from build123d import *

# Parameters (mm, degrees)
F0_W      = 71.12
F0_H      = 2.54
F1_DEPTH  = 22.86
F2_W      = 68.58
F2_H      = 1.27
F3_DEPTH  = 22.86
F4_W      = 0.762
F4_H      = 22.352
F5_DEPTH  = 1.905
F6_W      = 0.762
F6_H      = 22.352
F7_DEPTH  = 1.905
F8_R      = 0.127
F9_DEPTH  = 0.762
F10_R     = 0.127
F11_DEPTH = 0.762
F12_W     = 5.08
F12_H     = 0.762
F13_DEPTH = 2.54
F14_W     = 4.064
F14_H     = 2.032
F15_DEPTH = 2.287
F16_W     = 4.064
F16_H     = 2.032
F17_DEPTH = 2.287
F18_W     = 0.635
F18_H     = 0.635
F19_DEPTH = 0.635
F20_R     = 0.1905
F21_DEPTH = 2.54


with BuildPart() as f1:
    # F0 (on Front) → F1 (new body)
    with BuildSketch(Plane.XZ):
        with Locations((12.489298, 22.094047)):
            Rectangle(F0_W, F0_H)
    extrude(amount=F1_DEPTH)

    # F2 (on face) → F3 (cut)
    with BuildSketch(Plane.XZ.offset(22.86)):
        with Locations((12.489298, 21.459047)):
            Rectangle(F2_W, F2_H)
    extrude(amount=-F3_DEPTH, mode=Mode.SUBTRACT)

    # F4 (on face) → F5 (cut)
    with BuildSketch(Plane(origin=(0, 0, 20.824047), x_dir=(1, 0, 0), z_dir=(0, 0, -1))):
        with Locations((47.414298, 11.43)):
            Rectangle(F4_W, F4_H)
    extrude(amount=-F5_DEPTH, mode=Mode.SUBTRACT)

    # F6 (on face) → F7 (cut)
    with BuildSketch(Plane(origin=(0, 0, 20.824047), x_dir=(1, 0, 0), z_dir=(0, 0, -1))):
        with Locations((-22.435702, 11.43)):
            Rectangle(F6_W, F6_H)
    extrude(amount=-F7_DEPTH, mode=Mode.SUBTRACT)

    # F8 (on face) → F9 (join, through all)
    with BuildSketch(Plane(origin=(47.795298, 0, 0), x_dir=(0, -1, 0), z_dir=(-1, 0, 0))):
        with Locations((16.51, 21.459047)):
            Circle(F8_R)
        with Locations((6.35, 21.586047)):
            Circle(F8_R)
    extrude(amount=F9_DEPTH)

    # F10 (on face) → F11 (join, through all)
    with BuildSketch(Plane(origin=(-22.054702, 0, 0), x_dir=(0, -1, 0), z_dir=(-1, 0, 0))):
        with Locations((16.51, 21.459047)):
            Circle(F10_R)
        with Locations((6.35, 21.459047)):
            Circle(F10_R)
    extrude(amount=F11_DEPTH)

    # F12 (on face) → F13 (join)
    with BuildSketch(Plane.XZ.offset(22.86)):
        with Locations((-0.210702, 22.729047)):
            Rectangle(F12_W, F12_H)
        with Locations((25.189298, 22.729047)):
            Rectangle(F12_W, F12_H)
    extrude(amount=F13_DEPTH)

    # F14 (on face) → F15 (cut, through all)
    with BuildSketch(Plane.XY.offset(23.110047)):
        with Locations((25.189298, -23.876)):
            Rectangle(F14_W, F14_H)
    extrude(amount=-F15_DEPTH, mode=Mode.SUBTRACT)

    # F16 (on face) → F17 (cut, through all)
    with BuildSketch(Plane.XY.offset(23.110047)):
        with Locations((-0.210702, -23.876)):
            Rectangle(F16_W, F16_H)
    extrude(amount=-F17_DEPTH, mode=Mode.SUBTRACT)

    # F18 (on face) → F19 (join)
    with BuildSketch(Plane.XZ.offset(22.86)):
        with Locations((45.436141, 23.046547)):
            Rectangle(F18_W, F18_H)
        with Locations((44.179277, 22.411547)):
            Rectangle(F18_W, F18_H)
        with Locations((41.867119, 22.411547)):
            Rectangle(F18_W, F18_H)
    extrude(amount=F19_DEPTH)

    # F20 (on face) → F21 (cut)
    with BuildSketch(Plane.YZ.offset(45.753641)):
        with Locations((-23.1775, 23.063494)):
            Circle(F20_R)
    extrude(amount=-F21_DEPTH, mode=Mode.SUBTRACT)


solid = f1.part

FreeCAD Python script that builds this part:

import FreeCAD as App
import Part
import Sketcher
Q = App.Units.Quantity

doc = App.newDocument("Part")
body = doc.addObject("PartDesign::Body", "Body")

# Sketch on XZ plane
sketch1 = doc.addObject("Sketcher::SketchObject", "Sketch")
body.addObject(sketch1)
sketch1.AttachmentSupport = (doc.XZ_Plane, [""])
sketch1.MapMode = "FlatFace"
sketch1.addGeometry(Part.LineSegment(App.Vector(-23.1, 23.4, 0), App.Vector(-23.1, 20.8, 0)), False)
sketch1.addGeometry(Part.LineSegment(App.Vector(-23.1, 20.8, 0), App.Vector(48, 20.8, 0)), False)
sketch1.addGeometry(Part.LineSegment(App.Vector(48, 20.8, 0), App.Vector(48, 23.4, 0)), False)
sketch1.addGeometry(Part.LineSegment(App.Vector(48, 23.4, 0), App.Vector(-23.1, 23.4, 0)), False)
sketch1.addConstraint(Sketcher.Constraint("Coincident", 0, 2, 1, 1))
sketch1.addConstraint(Sketcher.Constraint("Coincident", 1, 2, 2, 1))
sketch1.addConstraint(Sketcher.Constraint("Coincident", 2, 2, 3, 1))
sketch1.addConstraint(Sketcher.Constraint("Coincident", 3, 2, 0, 1))
sketch1.addConstraint(Sketcher.Constraint("Vertical", 0))
sketch1.addConstraint(Sketcher.Constraint("Horizontal", 1))
sketch1.addConstraint(Sketcher.Constraint("Vertical", 2))
sketch1.addConstraint(Sketcher.Constraint("Horizontal", 3))
sketch1.addConstraint(Sketcher.Constraint("DistanceX", 1, 1, 1, 2, Q("2.8 in")))
sketch1.addConstraint(Sketcher.Constraint("DistanceY", 0, 2, 0, 1, Q("0.1 in")))
sketch1.addConstraint(Sketcher.Constraint("DistanceX", 0, 2, -1, 1, 23.070702))
sketch1.addConstraint(Sketcher.Constraint("DistanceY", -1, 1, 0, 2, 20.824047))
pad1 = doc.addObject("PartDesign::Pad", "Pad")
body.addObject(pad1)
pad1.Profile = sketch1
pad1.Length = Q("0.9 in")

# Sketch on XZ plane
sketch2 = doc.addObject("Sketcher::SketchObject", "Sketch001")
body.addObject(sketch2)
sketch2.AttachmentSupport = (doc.XZ_Plane, [""])
sketch2.MapMode = "FlatFace"
sketch2.AttachmentOffset = App.Placement(App.Vector(0, 0, 0.9 * 25.4), App.Rotation())
sketch2.addGeometry(Part.LineSegment(App.Vector(-21.8, 22.1, 0), App.Vector(-21.8, 20.8, 0)), False)
sketch2.addGeometry(Part.LineSegment(App.Vector(-21.8, 20.8, 0), App.Vector(46.8, 20.8, 0)), False)
sketch2.addGeometry(Part.LineSegment(App.Vector(46.8, 20.8, 0), App.Vector(46.8, 22.1, 0)), False)
sketch2.addGeometry(Part.LineSegment(App.Vector(46.8, 22.1, 0), App.Vector(-21.8, 22.1, 0)), False)
sketch2.addConstraint(Sketcher.Constraint("Coincident", 0, 2, 1, 1))
sketch2.addConstraint(Sketcher.Constraint("Coincident", 1, 2, 2, 1))
sketch2.addConstraint(Sketcher.Constraint("Coincident", 2, 2, 3, 1))
sketch2.addConstraint(Sketcher.Constraint("Coincident", 3, 2, 0, 1))
sketch2.addConstraint(Sketcher.Constraint("Vertical", 0))
sketch2.addConstraint(Sketcher.Constraint("Horizontal", 1))
sketch2.addConstraint(Sketcher.Constraint("Vertical", 2))
sketch2.addConstraint(Sketcher.Constraint("Horizontal", 3))
sketch2.addConstraint(Sketcher.Constraint("DistanceX", 1, 1, 1, 2, Q("2.7 in")))
sketch2.addConstraint(Sketcher.Constraint("DistanceY", 0, 2, 0, 1, Q("0.05 in")))
sketch2.addConstraint(Sketcher.Constraint("DistanceX", 0, 2, -1, 1, 21.800702))
sketch2.addConstraint(Sketcher.Constraint("DistanceY", -1, 1, 0, 2, 20.824047))
pocket1 = doc.addObject("PartDesign::Pocket", "Pocket")
body.addObject(pocket1)
pocket1.Profile = sketch2
pocket1.Length = Q("0.9 in")

# Sketch on XY plane
sketch3 = doc.addObject("Sketcher::SketchObject", "Sketch002")
body.addObject(sketch3)
sketch3.AttachmentSupport = (doc.XY_Plane, [""])
sketch3.MapMode = "FlatFace"
sketch3.AttachmentOffset = App.Placement(App.Vector(0, 0, 20.824047), App.Rotation())
sketch3.addGeometry(Part.LineSegment(App.Vector(47, -22.6, 0), App.Vector(47, -0.3, 0)), False)
sketch3.addGeometry(Part.LineSegment(App.Vector(47, -0.3, 0), App.Vector(47.8, -0.3, 0)), False)
sketch3.addGeometry(Part.LineSegment(App.Vector(47.8, -0.3, 0), App.Vector(47.8, -22.6, 0)), False)
sketch3.addGeometry(Part.LineSegment(App.Vector(47.8, -22.6, 0), App.Vector(47, -22.6, 0)), False)
sketch3.addConstraint(Sketcher.Constraint("Coincident", 0, 2, 1, 1))
sketch3.addConstraint(Sketcher.Constraint("Coincident", 1, 2, 2, 1))
sketch3.addConstraint(Sketcher.Constraint("Coincident", 2, 2, 3, 1))
sketch3.addConstraint(Sketcher.Constraint("Coincident", 3, 2, 0, 1))
sketch3.addConstraint(Sketcher.Constraint("Vertical", 0))
sketch3.addConstraint(Sketcher.Constraint("Horizontal", 1))
sketch3.addConstraint(Sketcher.Constraint("Vertical", 2))
sketch3.addConstraint(Sketcher.Constraint("Horizontal", 3))
sketch3.addConstraint(Sketcher.Constraint("DistanceX", 1, 1, 1, 2, Q("0.03 in")))
sketch3.addConstraint(Sketcher.Constraint("DistanceY", 0, 1, 0, 2, Q("0.88 in")))
sketch3.addConstraint(Sketcher.Constraint("DistanceY", 0, 2, -1, 1, Q("0.01 in")))
sketch3.addConstraint(Sketcher.Constraint("DistanceX", -1, 1, 0, 2, 47.033298))
pocket2 = doc.addObject("PartDesign::Pocket", "Pocket001")
body.addObject(pocket2)
pocket2.Profile = sketch3
pocket2.Length = Q("0.075 in")
pocket2.Reversed = True

# Sketch on XY plane
sketch4 = doc.addObject("Sketcher::SketchObject", "Sketch003")
body.addObject(sketch4)
sketch4.AttachmentSupport = (doc.XY_Plane, [""])
sketch4.MapMode = "FlatFace"
sketch4.AttachmentOffset = App.Placement(App.Vector(0, 0, 20.824047), App.Rotation())
sketch4.addGeometry(Part.LineSegment(App.Vector(-22.8, -22.6, 0), App.Vector(-22.8, -0.3, 0)), False)
sketch4.addGeometry(Part.LineSegment(App.Vector(-22.8, -0.3, 0), App.Vector(-22.1, -0.3, 0)), False)
sketch4.addGeometry(Part.LineSegment(App.Vector(-22.1, -0.3, 0), App.Vector(-22.1, -22.6, 0)), False)
sketch4.addGeometry(Part.LineSegment(App.Vector(-22.1, -22.6, 0), App.Vector(-22.8, -22.6, 0)), False)
sketch4.addConstraint(Sketcher.Constraint("Coincident", 0, 2, 1, 1))
sketch4.addConstraint(Sketcher.Constraint("Coincident", 1, 2, 2, 1))
sketch4.addConstraint(Sketcher.Constraint("Coincident", 2, 2, 3, 1))
sketch4.addConstraint(Sketcher.Constraint("Coincident", 3, 2, 0, 1))
sketch4.addConstraint(Sketcher.Constraint("Vertical", 0))
sketch4.addConstraint(Sketcher.Constraint("Horizontal", 1))
sketch4.addConstraint(Sketcher.Constraint("Vertical", 2))
sketch4.addConstraint(Sketcher.Constraint("Horizontal", 3))
sketch4.addConstraint(Sketcher.Constraint("DistanceX", 1, 1, 1, 2, Q("0.03 in")))
sketch4.addConstraint(Sketcher.Constraint("DistanceY", 0, 1, 0, 2, Q("0.88 in")))
sketch4.addConstraint(Sketcher.Constraint("DistanceY", 0, 2, -1, 1, Q("0.01 in")))
sketch4.addConstraint(Sketcher.Constraint("DistanceX", 0, 2, -1, 1, 22.816702))
pocket3 = doc.addObject("PartDesign::Pocket", "Pocket002")
body.addObject(pocket3)
pocket3.Profile = sketch4
pocket3.Length = Q("0.075 in")
pocket3.Reversed = True

# Sketch on YZ plane
sketch5 = doc.addObject("Sketcher::SketchObject", "Sketch004")
body.addObject(sketch5)
sketch5.AttachmentSupport = (doc.YZ_Plane, [""])
sketch5.MapMode = "FlatFace"
sketch5.AttachmentOffset = App.Placement(App.Vector(0, 0, 47.795298), App.Rotation())
sketch5.addGeometry(Part.Circle(App.Vector(-16.51, 21.46, 0), App.Vector(0, 0, 1), 0.13), False)
sketch5.addGeometry(Part.Circle(App.Vector(-6.35, 21.59, 0), App.Vector(0, 0, 1), 0.13), False)
sketch5.addConstraint(Sketcher.Constraint("Equal", 0, 1))
sketch5.addConstraint(Sketcher.Constraint("Diameter", 0, Q("0.01 in")))
sketch5.addConstraint(Sketcher.Constraint("DistanceX", 0, 3, 1, 3, Q("0.4 in")))
sketch5.addConstraint(Sketcher.Constraint("DistanceX", 0, 3, -1, 1, Q("0.65 in")))
sketch5.addConstraint(Sketcher.Constraint("DistanceY", 0, 3, 1, 3, Q("0.005 in")))
sketch5.addConstraint(Sketcher.Constraint("DistanceY", -1, 1, 0, 3, 21.459047))
pad2 = doc.addObject("PartDesign::Pad", "Pad001")
body.addObject(pad2)
pad2.Profile = sketch5
pad2.Length = Q("0.03 in")
pad2.Reversed = True

# Sketch on YZ plane
sketch6 = doc.addObject("Sketcher::SketchObject", "Sketch005")
body.addObject(sketch6)
sketch6.AttachmentSupport = (doc.YZ_Plane, [""])
sketch6.MapMode = "FlatFace"
sketch6.AttachmentOffset = App.Placement(App.Vector(0, 0, -22.054702), App.Rotation())
sketch6.addGeometry(Part.Circle(App.Vector(-16.51, 21.46, 0), App.Vector(0, 0, 1), 0.13), False)
sketch6.addGeometry(Part.Circle(App.Vector(-6.35, 21.46, 0), App.Vector(0, 0, 1), 0.13), False)
sketch6.addConstraint(Sketcher.Constraint("Equal", 0, 1))
sketch6.addConstraint(Sketcher.Constraint("Horizontal", 0, 3, 1, 3))
sketch6.addConstraint(Sketcher.Constraint("Diameter", 0, Q("0.01 in")))
sketch6.addConstraint(Sketcher.Constraint("DistanceX", 0, 3, 1, 3, Q("0.4 in")))
sketch6.addConstraint(Sketcher.Constraint("DistanceX", 0, 3, -1, 1, Q("0.65 in")))
sketch6.addConstraint(Sketcher.Constraint("DistanceY", -1, 1, 0, 3, 21.459047))
pad3 = doc.addObject("PartDesign::Pad", "Pad002")
body.addObject(pad3)
pad3.Profile = sketch6
pad3.Type = "UpToLast"
pad3.Reversed = True

# Sketch on XZ plane
sketch7 = doc.addObject("Sketcher::SketchObject", "Sketch006")
body.addObject(sketch7)
sketch7.AttachmentSupport = (doc.XZ_Plane, [""])
sketch7.MapMode = "FlatFace"
sketch7.AttachmentOffset = App.Placement(App.Vector(0, 0, 0.9 * 25.4), App.Rotation())
sketch7.addGeometry(Part.LineSegment(App.Vector(-2.8, 23.1, 0), App.Vector(-2.8, 22.3, 0)), False)
sketch7.addGeometry(Part.LineSegment(App.Vector(-2.8, 22.3, 0), App.Vector(2.3, 22.3, 0)), False)
sketch7.addGeometry(Part.LineSegment(App.Vector(2.3, 22.3, 0), App.Vector(2.3, 23.1, 0)), False)
sketch7.addGeometry(Part.LineSegment(App.Vector(2.3, 23.1, 0), App.Vector(-2.8, 23.1, 0)), False)
sketch7.addGeometry(Part.LineSegment(App.Vector(22.6, 23.1, 0), App.Vector(22.6, 22.3, 0)), False)
sketch7.addGeometry(Part.LineSegment(App.Vector(22.6, 22.3, 0), App.Vector(27.7, 22.3, 0)), False)
sketch7.addGeometry(Part.LineSegment(App.Vector(27.7, 22.3, 0), App.Vector(27.7, 23.1, 0)), False)
sketch7.addGeometry(Part.LineSegment(App.Vector(27.7, 23.1, 0), App.Vector(22.6, 23.1, 0)), False)
sketch7.addConstraint(Sketcher.Constraint("Coincident", 0, 2, 1, 1))
sketch7.addConstraint(Sketcher.Constraint("Coincident", 1, 2, 2, 1))
sketch7.addConstraint(Sketcher.Constraint("Coincident", 2, 2, 3, 1))
sketch7.addConstraint(Sketcher.Constraint("Coincident", 3, 2, 0, 1))
sketch7.addConstraint(Sketcher.Constraint("Coincident", 4, 2, 5, 1))
sketch7.addConstraint(Sketcher.Constraint("Coincident", 5, 2, 6, 1))
sketch7.addConstraint(Sketcher.Constraint("Coincident", 6, 2, 7, 1))
sketch7.addConstraint(Sketcher.Constraint("Coincident", 7, 2, 4, 1))
sketch7.addConstraint(Sketcher.Constraint("Vertical", 0))
sketch7.addConstraint(Sketcher.Constraint("Horizontal", 1))
sketch7.addConstraint(Sketcher.Constraint("Vertical", 2))
sketch7.addConstraint(Sketcher.Constraint("Horizontal", 3))
sketch7.addConstraint(Sketcher.Constraint("Vertical", 4))
sketch7.addConstraint(Sketcher.Constraint("Horizontal", 5))
sketch7.addConstraint(Sketcher.Constraint("Vertical", 6))
sketch7.addConstraint(Sketcher.Constraint("Horizontal", 7))
sketch7.addConstraint(Sketcher.Constraint("Horizontal", 1, 2, 4, 2))
sketch7.addConstraint(Sketcher.Constraint("Horizontal", 3, 2, 6, 2))
sketch7.addConstraint(Sketcher.Constraint("Equal", 3, 5))
sketch7.addConstraint(Sketcher.Constraint("DistanceX", 1, 1, 1, 2, Q("0.2 in")))
sketch7.addConstraint(Sketcher.Constraint("DistanceX", 0, 2, 4, 2, Q("1 in")))
sketch7.addConstraint(Sketcher.Constraint("DistanceY", 0, 2, 0, 1, Q("0.03 in")))
sketch7.addConstraint(Sketcher.Constraint("DistanceX", 0, 2, -1, 1, 2.750702))
sketch7.addConstraint(Sketcher.Constraint("DistanceY", -1, 1, 0, 2, 22.348047))
pad4 = doc.addObject("PartDesign::Pad", "Pad003")
body.addObject(pad4)
pad4.Profile = sketch7
pad4.Length = Q("0.1 in")

# Sketch on XY plane
sketch8 = doc.addObject("Sketcher::SketchObject", "Sketch007")
body.addObject(sketch8)
sketch8.AttachmentSupport = (doc.XY_Plane, [""])
sketch8.MapMode = "FlatFace"
sketch8.AttachmentOffset = App.Placement(App.Vector(0, 0, 23.110047), App.Rotation())
sketch8.addGeometry(Part.LineSegment(App.Vector(23.2, -22.9, 0), App.Vector(23.2, -24.9, 0)), False)
sketch8.addGeometry(Part.LineSegment(App.Vector(23.2, -24.9, 0), App.Vector(27.2, -24.9, 0)), False)
sketch8.addGeometry(Part.LineSegment(App.Vector(27.2, -24.9, 0), App.Vector(27.2, -22.9, 0)), False)
sketch8.addGeometry(Part.LineSegment(App.Vector(27.2, -22.9, 0), App.Vector(23.2, -22.9, 0)), False)
sketch8.addConstraint(Sketcher.Constraint("Coincident", 0, 2, 1, 1))
sketch8.addConstraint(Sketcher.Constraint("Coincident", 1, 2, 2, 1))
sketch8.addConstraint(Sketcher.Constraint("Coincident", 2, 2, 3, 1))
sketch8.addConstraint(Sketcher.Constraint("Coincident", 3, 2, 0, 1))
sketch8.addConstraint(Sketcher.Constraint("Vertical", 0))
sketch8.addConstraint(Sketcher.Constraint("Horizontal", 1))
sketch8.addConstraint(Sketcher.Constraint("Vertical", 2))
sketch8.addConstraint(Sketcher.Constraint("Horizontal", 3))
sketch8.addConstraint(Sketcher.Constraint("DistanceX", 1, 1, 1, 2, Q("0.16 in")))
sketch8.addConstraint(Sketcher.Constraint("DistanceY", 0, 2, 0, 1, Q("0.08 in")))
sketch8.addConstraint(Sketcher.Constraint("DistanceY", 2, 2, -1, 1, Q("0.9 in")))
sketch8.addConstraint(Sketcher.Constraint("DistanceX", -1, 1, 0, 2, 23.157298))
pocket4 = doc.addObject("PartDesign::Pocket", "Pocket003")
body.addObject(pocket4)
pocket4.Profile = sketch8
pocket4.Type = "ThroughAll"

# Sketch on XY plane
sketch9 = doc.addObject("Sketcher::SketchObject", "Sketch008")
body.addObject(sketch9)
sketch9.AttachmentSupport = (doc.XY_Plane, [""])
sketch9.MapMode = "FlatFace"
sketch9.AttachmentOffset = App.Placement(App.Vector(0, 0, 23.110047), App.Rotation())
sketch9.addGeometry(Part.LineSegment(App.Vector(-2.2, -22.9, 0), App.Vector(-2.2, -24.9, 0)), False)
sketch9.addGeometry(Part.LineSegment(App.Vector(-2.2, -24.9, 0), App.Vector(1.8, -24.9, 0)), False)
sketch9.addGeometry(Part.LineSegment(App.Vector(1.8, -24.9, 0), App.Vector(1.8, -22.9, 0)), False)
sketch9.addGeometry(Part.LineSegment(App.Vector(1.8, -22.9, 0), App.Vector(-2.2, -22.9, 0)), False)
sketch9.addConstraint(Sketcher.Constraint("Coincident", 0, 2, 1, 1))
sketch9.addConstraint(Sketcher.Constraint("Coincident", 1, 2, 2, 1))
sketch9.addConstraint(Sketcher.Constraint("Coincident", 2, 2, 3, 1))
sketch9.addConstraint(Sketcher.Constraint("Coincident", 3, 2, 0, 1))
sketch9.addConstraint(Sketcher.Constraint("Vertical", 0))
sketch9.addConstraint(Sketcher.Constraint("Horizontal", 1))
sketch9.addConstraint(Sketcher.Constraint("Vertical", 2))
sketch9.addConstraint(Sketcher.Constraint("Horizontal", 3))
sketch9.addConstraint(Sketcher.Constraint("DistanceX", 1, 1, 1, 2, Q("0.16 in")))
sketch9.addConstraint(Sketcher.Constraint("DistanceY", 0, 2, 0, 1, Q("0.08 in")))
sketch9.addConstraint(Sketcher.Constraint("DistanceY", 2, 2, -1, 1, Q("0.9 in")))
sketch9.addConstraint(Sketcher.Constraint("DistanceX", 0, 2, -1, 1, 2.242702))
pocket5 = doc.addObject("PartDesign::Pocket", "Pocket004")
body.addObject(pocket5)
pocket5.Profile = sketch9
pocket5.Type = "ThroughAll"

# Sketch on XZ plane
sketch10 = doc.addObject("Sketcher::SketchObject", "Sketch009")
body.addObject(sketch10)
sketch10.AttachmentSupport = (doc.XZ_Plane, [""])
sketch10.MapMode = "FlatFace"
sketch10.AttachmentOffset = App.Placement(App.Vector(0, 0, 0.9 * 25.4), App.Rotation())
sketch10.addGeometry(Part.LineSegment(App.Vector(45.1, 23.4, 0), App.Vector(45.1, 22.7, 0)), False)
sketch10.addGeometry(Part.LineSegment(App.Vector(45.1, 22.7, 0), App.Vector(45.8, 22.7, 0)), False)
sketch10.addGeometry(Part.LineSegment(App.Vector(45.8, 22.7, 0), App.Vector(45.8, 23.4, 0)), False)
sketch10.addGeometry(Part.LineSegment(App.Vector(45.8, 23.4, 0), App.Vector(45.1, 23.4, 0)), False)
sketch10.addGeometry(Part.LineSegment(App.Vector(43.9, 22.7, 0), App.Vector(43.9, 22.1, 0)), False)
sketch10.addGeometry(Part.LineSegment(App.Vector(43.9, 22.1, 0), App.Vector(44.5, 22.1, 0)), False)
sketch10.addGeometry(Part.LineSegment(App.Vector(44.5, 22.1, 0), App.Vector(44.5, 22.7, 0)), False)
sketch10.addGeometry(Part.LineSegment(App.Vector(44.5, 22.7, 0), App.Vector(43.9, 22.7, 0)), False)
sketch10.addGeometry(Part.LineSegment(App.Vector(41.5, 22.7, 0), App.Vector(41.5, 22.1, 0)), False)
sketch10.addGeometry(Part.LineSegment(App.Vector(41.5, 22.1, 0), App.Vector(42.2, 22.1, 0)), False)
sketch10.addGeometry(Part.LineSegment(App.Vector(42.2, 22.1, 0), App.Vector(42.2, 22.7, 0)), False)
sketch10.addGeometry(Part.LineSegment(App.Vector(42.2, 22.7, 0), App.Vector(41.5, 22.7, 0)), False)
sketch10.addConstraint(Sketcher.Constraint("Coincident", 0, 2, 1, 1))
sketch10.addConstraint(Sketcher.Constraint("Coincident", 1, 2, 2, 1))
sketch10.addConstraint(Sketcher.Constraint("Coincident", 2, 2, 3, 1))
sketch10.addConstraint(Sketcher.Constraint("Coincident", 3, 2, 0, 1))
sketch10.addConstraint(Sketcher.Constraint("Coincident", 4, 2, 5, 1))
sketch10.addConstraint(Sketcher.Constraint("Coincident", 5, 2, 6, 1))
sketch10.addConstraint(Sketcher.Constraint("Coincident", 6, 2, 7, 1))
sketch10.addConstraint(Sketcher.Constraint("Coincident", 7, 2, 4, 1))
sketch10.addConstraint(Sketcher.Constraint("Coincident", 8, 2, 9, 1))
sketch10.addConstraint(Sketcher.Constraint("Coincident", 9, 2, 10, 1))
sketch10.addConstraint(Sketcher.Constraint("Coincident", 10, 2, 11, 1))
sketch10.addConstraint(Sketcher.Constraint("Coincident", 11, 2, 8, 1))
sketch10.addConstraint(Sketcher.Constraint("Vertical", 0))
sketch10.addConstraint(Sketcher.Constraint("Horizontal", 1))
sketch10.addConstraint(Sketcher.Constraint("Vertical", 2))
sketch10.addConstraint(Sketcher.Constraint("Horizontal", 3))
sketch10.addConstraint(Sketcher.Constraint("Vertical", 4))
sketch10.addConstraint(Sketcher.Constraint("Horizontal", 5))
sketch10.addConstraint(Sketcher.Constraint("Vertical", 6))
sketch10.addConstraint(Sketcher.Constraint("Horizontal", 7))
sketch10.addConstraint(Sketcher.Constraint("Vertical", 8))
sketch10.addConstraint(Sketcher.Constraint("Horizontal", 9))
sketch10.addConstraint(Sketcher.Constraint("Vertical", 10))
sketch10.addConstraint(Sketcher.Constraint("Horizontal", 11))
sketch10.addConstraint(Sketcher.Constraint("Horizontal", 1, 2, 6, 2))
sketch10.addConstraint(Sketcher.Constraint("Horizontal", 5, 2, 8, 2))
sketch10.addConstraint(Sketcher.Constraint("Horizontal", 7, 2, 10, 2))
sketch10.addConstraint(Sketcher.Constraint("Equal", 3, 5))
sketch10.addConstraint(Sketcher.Constraint("Equal", 7, 9))
sketch10.addConstraint(Sketcher.Constraint("Equal", 11, 0))
sketch10.addConstraint(Sketcher.Constraint("Equal", 2, 4))
sketch10.addConstraint(Sketcher.Constraint("DistanceX", 1, 1, 1, 2, Q("0.025 in")))
sketch10.addConstraint(Sketcher.Constraint("DistanceX", -1, 1, 0, 2, 45.118641))
sketch10.addConstraint(Sketcher.Constraint("DistanceX", -1, 1, 8, 2, 41.549619))
sketch10.addConstraint(Sketcher.Constraint("DistanceX", 8, 2, 5, 2, 2.947158))
sketch10.addConstraint(Sketcher.Constraint("DistanceY", -1, 1, 0, 2, 22.729047))
pad5 = doc.addObject("PartDesign::Pad", "Pad004")
body.addObject(pad5)
pad5.Profile = sketch10
pad5.Length = Q("0.025 in")

# Sketch on YZ plane
sketch11 = doc.addObject("Sketcher::SketchObject", "Sketch010")
body.addObject(sketch11)
sketch11.AttachmentSupport = (doc.YZ_Plane, [""])
sketch11.MapMode = "FlatFace"
sketch11.AttachmentOffset = App.Placement(App.Vector(0, 0, 45.753641), App.Rotation())
sketch11.addGeometry(Part.Circle(App.Vector(-23.18, 23.06, 0), App.Vector(0, 0, 1), 0.19), False)
sketch11.addConstraint(Sketcher.Constraint("Diameter", 0, Q("0.015 in")))
sketch11.addConstraint(Sketcher.Constraint("DistanceX", 0, 3, -1, 1, Q("0.9125 in")))
sketch11.addConstraint(Sketcher.Constraint("DistanceY", -1, 1, 0, 3, 23.063494))
pocket6 = doc.addObject("PartDesign::Pocket", "Pocket005")
body.addObject(pocket6)
pocket6.Profile = sketch11
pocket6.Length = Q("0.1 in")

doc.recompute()
